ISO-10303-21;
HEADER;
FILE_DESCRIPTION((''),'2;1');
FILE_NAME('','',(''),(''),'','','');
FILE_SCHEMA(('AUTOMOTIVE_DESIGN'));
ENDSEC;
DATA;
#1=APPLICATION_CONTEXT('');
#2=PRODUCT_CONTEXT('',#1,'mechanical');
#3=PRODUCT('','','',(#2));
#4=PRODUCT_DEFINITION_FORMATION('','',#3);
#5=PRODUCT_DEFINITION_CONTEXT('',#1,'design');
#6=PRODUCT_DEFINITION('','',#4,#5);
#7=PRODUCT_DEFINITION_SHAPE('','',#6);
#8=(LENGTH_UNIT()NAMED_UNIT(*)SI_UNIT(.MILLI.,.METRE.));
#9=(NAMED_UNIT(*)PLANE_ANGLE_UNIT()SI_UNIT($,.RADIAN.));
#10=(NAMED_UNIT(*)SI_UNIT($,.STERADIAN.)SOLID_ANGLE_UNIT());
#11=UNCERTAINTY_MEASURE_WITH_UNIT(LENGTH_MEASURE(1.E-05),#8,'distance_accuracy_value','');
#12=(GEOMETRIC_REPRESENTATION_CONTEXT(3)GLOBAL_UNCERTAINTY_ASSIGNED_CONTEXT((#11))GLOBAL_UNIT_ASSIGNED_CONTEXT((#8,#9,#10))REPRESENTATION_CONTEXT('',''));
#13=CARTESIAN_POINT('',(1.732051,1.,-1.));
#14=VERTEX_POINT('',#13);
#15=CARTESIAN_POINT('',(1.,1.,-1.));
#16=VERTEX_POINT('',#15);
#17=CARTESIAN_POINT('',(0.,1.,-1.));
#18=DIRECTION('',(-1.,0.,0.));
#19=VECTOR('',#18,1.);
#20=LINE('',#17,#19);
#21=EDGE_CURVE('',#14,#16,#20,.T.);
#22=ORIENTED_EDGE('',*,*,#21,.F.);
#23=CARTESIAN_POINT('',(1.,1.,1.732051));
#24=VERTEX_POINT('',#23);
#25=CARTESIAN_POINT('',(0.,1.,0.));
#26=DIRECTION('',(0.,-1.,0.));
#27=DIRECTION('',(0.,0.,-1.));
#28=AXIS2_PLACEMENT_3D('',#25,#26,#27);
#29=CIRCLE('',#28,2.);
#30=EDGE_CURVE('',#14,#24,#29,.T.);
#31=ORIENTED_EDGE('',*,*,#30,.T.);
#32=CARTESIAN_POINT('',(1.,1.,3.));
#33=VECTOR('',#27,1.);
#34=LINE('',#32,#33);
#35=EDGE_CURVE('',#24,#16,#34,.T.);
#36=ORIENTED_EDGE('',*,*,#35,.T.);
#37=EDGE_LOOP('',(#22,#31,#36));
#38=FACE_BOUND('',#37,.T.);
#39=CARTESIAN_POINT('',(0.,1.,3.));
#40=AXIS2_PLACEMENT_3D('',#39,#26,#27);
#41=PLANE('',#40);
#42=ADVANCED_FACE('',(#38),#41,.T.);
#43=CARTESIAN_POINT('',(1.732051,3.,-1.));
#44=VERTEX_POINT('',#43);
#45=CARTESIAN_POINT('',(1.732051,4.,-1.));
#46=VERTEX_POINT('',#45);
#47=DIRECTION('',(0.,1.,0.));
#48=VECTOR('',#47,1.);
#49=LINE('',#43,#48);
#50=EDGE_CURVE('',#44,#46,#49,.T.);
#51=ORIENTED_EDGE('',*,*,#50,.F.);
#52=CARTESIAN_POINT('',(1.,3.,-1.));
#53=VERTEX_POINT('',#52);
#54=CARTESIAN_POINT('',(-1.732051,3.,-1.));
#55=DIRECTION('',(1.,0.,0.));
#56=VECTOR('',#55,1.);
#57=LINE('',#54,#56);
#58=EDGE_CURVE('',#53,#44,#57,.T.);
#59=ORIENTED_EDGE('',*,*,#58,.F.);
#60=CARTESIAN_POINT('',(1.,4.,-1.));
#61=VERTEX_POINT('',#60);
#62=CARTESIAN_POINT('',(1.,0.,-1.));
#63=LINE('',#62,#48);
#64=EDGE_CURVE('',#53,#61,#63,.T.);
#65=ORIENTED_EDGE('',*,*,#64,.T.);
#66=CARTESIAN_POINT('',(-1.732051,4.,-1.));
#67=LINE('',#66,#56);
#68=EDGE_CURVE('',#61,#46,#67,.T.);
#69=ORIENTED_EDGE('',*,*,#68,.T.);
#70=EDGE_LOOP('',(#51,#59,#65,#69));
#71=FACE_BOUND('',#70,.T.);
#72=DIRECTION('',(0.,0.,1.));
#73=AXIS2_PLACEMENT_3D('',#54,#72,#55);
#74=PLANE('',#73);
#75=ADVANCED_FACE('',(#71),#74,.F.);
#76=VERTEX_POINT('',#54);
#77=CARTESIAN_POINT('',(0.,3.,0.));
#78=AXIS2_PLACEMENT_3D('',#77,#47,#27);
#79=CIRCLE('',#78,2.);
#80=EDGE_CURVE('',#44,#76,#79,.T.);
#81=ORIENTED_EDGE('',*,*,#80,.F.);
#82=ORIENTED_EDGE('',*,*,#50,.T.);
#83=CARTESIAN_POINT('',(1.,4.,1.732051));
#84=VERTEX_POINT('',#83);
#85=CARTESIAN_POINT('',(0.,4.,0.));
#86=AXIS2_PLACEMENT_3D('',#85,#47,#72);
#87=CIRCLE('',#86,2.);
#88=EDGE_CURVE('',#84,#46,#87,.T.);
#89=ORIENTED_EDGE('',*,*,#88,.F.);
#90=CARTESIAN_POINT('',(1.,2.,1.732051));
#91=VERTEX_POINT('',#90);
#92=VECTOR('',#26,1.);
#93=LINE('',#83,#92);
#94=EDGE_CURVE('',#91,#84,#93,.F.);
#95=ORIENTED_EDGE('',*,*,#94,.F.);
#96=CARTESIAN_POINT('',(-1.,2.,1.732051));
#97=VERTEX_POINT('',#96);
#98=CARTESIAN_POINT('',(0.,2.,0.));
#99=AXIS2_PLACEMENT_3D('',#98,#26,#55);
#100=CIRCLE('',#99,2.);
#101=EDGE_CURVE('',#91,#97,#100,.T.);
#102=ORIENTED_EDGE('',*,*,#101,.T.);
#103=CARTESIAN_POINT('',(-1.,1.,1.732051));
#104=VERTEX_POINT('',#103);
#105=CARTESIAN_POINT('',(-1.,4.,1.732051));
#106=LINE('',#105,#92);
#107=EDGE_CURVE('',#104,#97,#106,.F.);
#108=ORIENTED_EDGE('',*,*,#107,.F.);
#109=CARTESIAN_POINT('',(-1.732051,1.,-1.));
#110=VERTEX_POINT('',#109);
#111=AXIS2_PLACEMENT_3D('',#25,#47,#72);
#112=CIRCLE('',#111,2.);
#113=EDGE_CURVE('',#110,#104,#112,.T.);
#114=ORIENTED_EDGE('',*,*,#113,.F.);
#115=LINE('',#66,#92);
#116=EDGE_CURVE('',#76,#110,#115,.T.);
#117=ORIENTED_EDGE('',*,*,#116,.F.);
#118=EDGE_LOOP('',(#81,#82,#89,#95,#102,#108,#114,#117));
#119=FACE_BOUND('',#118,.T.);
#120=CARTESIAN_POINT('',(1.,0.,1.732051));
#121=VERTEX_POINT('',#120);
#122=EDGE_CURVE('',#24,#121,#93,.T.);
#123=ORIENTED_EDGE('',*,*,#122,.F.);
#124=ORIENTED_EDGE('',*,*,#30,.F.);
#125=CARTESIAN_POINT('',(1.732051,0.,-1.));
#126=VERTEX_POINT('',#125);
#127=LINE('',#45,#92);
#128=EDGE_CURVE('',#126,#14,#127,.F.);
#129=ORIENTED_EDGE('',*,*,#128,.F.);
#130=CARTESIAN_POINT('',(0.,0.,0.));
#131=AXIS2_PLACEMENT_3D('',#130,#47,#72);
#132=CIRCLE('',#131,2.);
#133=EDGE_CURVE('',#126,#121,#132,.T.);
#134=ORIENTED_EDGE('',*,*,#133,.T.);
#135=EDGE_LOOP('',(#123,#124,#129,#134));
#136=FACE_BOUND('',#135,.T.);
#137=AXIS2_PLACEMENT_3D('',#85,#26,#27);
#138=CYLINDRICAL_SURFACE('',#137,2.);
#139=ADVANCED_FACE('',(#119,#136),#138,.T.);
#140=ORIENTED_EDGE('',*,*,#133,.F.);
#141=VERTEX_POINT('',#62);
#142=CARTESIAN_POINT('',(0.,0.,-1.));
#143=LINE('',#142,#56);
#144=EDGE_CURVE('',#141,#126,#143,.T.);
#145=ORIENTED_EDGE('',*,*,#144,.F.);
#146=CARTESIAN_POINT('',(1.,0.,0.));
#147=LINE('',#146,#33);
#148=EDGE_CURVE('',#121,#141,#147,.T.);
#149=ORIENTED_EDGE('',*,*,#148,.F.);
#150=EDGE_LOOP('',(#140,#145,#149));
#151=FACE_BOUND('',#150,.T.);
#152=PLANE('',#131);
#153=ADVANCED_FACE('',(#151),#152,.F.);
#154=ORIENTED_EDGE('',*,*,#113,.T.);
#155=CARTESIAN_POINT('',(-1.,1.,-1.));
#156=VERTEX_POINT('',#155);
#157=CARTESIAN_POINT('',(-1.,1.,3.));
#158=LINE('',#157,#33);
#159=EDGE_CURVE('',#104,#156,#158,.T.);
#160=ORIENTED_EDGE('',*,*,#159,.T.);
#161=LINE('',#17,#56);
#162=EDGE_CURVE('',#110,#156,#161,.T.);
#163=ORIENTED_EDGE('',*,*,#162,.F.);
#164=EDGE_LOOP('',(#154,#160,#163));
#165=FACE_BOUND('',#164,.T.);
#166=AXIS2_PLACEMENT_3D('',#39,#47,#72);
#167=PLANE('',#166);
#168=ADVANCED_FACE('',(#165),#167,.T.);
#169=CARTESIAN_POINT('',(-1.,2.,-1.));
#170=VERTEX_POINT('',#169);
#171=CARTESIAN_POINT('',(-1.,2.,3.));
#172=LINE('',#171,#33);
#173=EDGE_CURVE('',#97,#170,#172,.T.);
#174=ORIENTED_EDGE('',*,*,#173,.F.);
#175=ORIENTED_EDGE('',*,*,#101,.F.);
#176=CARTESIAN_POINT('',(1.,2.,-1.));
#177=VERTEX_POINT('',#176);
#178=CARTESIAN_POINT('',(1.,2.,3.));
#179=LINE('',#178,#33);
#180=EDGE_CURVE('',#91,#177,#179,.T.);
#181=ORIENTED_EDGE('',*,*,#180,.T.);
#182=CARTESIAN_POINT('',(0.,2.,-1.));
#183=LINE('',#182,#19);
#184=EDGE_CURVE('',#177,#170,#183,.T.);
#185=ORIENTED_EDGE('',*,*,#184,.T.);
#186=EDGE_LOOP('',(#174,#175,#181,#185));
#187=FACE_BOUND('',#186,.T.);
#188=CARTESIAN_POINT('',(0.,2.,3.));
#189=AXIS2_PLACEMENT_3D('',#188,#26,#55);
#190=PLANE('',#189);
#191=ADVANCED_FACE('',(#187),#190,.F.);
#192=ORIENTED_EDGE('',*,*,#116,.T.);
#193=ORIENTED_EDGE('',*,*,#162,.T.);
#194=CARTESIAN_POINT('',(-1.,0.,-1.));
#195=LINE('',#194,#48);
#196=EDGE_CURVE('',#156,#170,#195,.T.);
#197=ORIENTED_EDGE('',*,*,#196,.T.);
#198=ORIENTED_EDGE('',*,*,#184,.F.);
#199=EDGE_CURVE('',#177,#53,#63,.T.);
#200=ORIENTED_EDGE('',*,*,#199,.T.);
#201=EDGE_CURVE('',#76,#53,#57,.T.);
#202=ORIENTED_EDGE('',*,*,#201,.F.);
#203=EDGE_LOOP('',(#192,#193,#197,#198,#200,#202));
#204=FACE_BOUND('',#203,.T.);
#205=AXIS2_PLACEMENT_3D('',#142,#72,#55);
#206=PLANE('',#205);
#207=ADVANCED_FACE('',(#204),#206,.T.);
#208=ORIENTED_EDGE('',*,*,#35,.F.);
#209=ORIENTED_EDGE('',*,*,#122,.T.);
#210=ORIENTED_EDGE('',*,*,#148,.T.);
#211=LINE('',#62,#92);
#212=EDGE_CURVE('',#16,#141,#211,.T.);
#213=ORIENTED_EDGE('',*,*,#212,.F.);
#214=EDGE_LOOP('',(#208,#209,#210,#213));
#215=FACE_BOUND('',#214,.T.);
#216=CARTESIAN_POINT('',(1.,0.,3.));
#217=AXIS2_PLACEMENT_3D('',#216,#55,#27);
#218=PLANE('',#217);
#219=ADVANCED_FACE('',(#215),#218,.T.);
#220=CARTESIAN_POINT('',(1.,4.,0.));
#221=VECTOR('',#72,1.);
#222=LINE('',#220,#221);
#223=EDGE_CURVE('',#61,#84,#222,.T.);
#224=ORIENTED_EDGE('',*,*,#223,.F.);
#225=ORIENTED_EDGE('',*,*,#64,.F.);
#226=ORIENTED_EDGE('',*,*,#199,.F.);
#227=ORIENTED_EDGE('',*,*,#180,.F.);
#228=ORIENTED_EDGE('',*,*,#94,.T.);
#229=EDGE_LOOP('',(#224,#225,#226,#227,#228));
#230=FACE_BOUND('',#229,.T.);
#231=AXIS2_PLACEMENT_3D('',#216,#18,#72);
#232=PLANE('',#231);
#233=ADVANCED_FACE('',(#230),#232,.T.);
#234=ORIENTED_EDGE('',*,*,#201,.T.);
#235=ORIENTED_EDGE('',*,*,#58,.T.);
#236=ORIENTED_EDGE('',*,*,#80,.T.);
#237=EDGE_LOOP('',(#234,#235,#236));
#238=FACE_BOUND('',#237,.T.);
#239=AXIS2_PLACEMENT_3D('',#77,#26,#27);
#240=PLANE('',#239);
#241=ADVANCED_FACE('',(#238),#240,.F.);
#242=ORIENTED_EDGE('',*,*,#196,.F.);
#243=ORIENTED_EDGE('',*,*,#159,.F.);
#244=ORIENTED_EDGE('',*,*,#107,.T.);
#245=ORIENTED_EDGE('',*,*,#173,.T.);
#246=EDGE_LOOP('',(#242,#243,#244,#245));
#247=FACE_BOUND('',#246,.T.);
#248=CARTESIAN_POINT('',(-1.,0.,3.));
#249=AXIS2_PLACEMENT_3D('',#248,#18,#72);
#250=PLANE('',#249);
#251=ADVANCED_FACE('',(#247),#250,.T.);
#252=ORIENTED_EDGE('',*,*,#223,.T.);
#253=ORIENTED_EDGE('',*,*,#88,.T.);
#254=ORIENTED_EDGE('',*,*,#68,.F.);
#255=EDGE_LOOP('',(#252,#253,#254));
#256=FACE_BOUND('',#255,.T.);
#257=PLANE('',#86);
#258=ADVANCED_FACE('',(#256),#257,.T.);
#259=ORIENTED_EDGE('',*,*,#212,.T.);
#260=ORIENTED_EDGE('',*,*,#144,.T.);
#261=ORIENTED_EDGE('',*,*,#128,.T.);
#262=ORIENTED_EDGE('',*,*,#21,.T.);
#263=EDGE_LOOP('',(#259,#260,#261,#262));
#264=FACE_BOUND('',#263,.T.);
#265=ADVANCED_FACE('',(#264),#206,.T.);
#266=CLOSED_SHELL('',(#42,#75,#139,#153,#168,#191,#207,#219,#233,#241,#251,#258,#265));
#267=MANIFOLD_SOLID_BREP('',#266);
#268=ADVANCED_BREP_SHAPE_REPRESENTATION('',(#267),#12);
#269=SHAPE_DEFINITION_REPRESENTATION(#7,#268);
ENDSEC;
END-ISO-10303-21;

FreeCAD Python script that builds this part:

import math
import FreeCAD as App
import Part
import Sketcher
Q = App.Units.Quantity


def add_polygon(sketch, points):
    """Adds a closed chain of lines whose ends are joined by coincident constraints."""
    first, n = sketch.GeometryCount, len(points)
    for a, b in zip(points, points[1:] + points[:1]):
        sketch.addGeometry(Part.LineSegment(App.Vector(*a, 0), App.Vector(*b, 0)), False)
    for i in range(n):
        sketch.addConstraint(Sketcher.Constraint("Coincident", first + i, 2, first + (i + 1) % n, 1))

doc = App.newDocument("Part")
params = doc.addObject("Spreadsheet::Sheet", "Params")
for row, (alias, value) in enumerate([
    ("sketch1_diameter", "4 mm"),
    ("pad1_length", "4 mm"),
    ("sketch2_width", "3 mm"),
    ("sketch2_width2", "1 mm"),
    ("pocket1_length", "3 mm"),
    ("pocket1_length2", "1 mm"),
    ("sketch3_radius", "2 mm"),
    ("pocket2_length", "1 mm"),
], start=1):
    params.set(f"A{row}", alias)
    params.set(f"B{row}", "=" + value)
    params.setAlias(f"B{row}", alias)

body = doc.addObject("PartDesign::Body", "Body")

sketch1 = body.newObject("Sketcher::SketchObject", "Sketch")
sketch1.AttachmentSupport = (doc.getObject("XZ_Plane"), [""])
sketch1.MapMode = "FlatFace"
sketch1.addGeometry(Part.Circle(App.Vector(0, 0, 0), App.Vector(0, 0, 1), 2), False)
sketch1.addConstraint([
    Sketcher.Constraint("Coincident", 0, 3, -1, 1),
    Sketcher.Constraint("Diameter", 0, Q("4 mm")),
])
sketch1.setExpression("Constraints[1]", "Params.sketch1_diameter")
pad1 = body.newObject("PartDesign::Pad", "Pad")
pad1.Profile = sketch1
pad1.setExpression("Length", "Params.pad1_length")
pad1.Reversed = True

sketch2 = body.newObject("Sketcher::SketchObject", "Sketch001")
sketch2.AttachmentSupport = (doc.getObject("XY_Plane"), [""])
sketch2.MapMode = "FlatFace"
add_polygon(sketch2, [(1, 2), (1, 4), (-2, 4), (-2, 1), (-1, 1), (-1, 2)])
add_polygon(sketch2, [(1, 1), (1, 0), (2, 0), (2, 1)])
sketch2.addConstraint([
    Sketcher.Constraint("Vertical", 0),
    Sketcher.Constraint("Horizontal", 1),
    Sketcher.Constraint("Vertical", 2),
    Sketcher.Constraint("Horizontal", 3),
    Sketcher.Constraint("Vertical", 4),
    Sketcher.Constraint("Horizontal", 5),
    Sketcher.Constraint("Vertical", 6),
    Sketcher.Constraint("Horizontal", 7),
    Sketcher.Constraint("Vertical", 8),
    Sketcher.Constraint("Horizontal", 9),
    Sketcher.Constraint("Symmetric", 2, 2, 8, 2, -2),
    Sketcher.Constraint("PointOnObject", 6, 2, -1),
    Sketcher.Constraint("Vertical", 5, 2, 6, 2),
    Sketcher.Constraint("Equal", 3, 7),
    Sketcher.Constraint("Equal", 5, 0),
    Sketcher.Constraint("Equal", 1, 2),
    Sketcher.Constraint("Equal", 4, 6),
    Sketcher.Constraint("DistanceX", 1, 2, 1, 1, Q("3 mm")),
    Sketcher.Constraint("DistanceX", 3, 1, 3, 2, Q("1 mm")),
])
sketch2.setExpression("Constraints[27]", "Params.sketch2_width")
sketch2.setExpression("Constraints[28]", "Params.sketch2_width2")
pocket1 = body.newObject("PartDesign::Pocket", "Pocket")
pocket1.Profile = sketch2
pocket1.Type = "TwoLengths"
pocket1.setExpression("Length", "Params.pocket1_length")
pocket1.setExpression("Length2", "Params.pocket1_length2")
pocket1.Reversed = True

sketch3 = body.newObject("Sketcher::SketchObject", "Sketch002")
sketch3.AttachmentSupport = (doc.getObject("XZ_Plane"), [""])
sketch3.MapMode = "FlatFace"
sketch3.AttachmentOffset = App.Placement(App.Vector(0, 0, -4), App.Rotation())
sketch3.addGeometry([
    Part.LineSegment(App.Vector(-1.7, -1, 0), App.Vector(1.7, -1, 0)),
    Part.ArcOfCircle(Part.Circle(App.Vector(0, 0, 0), App.Vector(0, 0, 1), 2), math.radians(-150), math.radians(-30)),
], False)
sketch3.addConstraint([
    Sketcher.Constraint("Coincident", 0, 1, 1, 1),
    Sketcher.Constraint("Coincident", 1, 2, 0, 2),
    Sketcher.Constraint("Horizontal", 0),
    Sketcher.Constraint("Coincident", 1, 3, -1, 1),
    Sketcher.Constraint("Radius", 1, Q("2 mm")),
    Sketcher.Constraint("DistanceY", 0, 1, -1, 1, Q("1 mm")),
])
sketch3.setExpression("Constraints[4]", "Params.sketch3_radius")
pocket2 = body.newObject("PartDesign::Pocket", "Pocket001")
pocket2.Profile = sketch3
pocket2.setExpression("Length", "Params.pocket2_length")
pocket2.Reversed = True

doc.recompute()
